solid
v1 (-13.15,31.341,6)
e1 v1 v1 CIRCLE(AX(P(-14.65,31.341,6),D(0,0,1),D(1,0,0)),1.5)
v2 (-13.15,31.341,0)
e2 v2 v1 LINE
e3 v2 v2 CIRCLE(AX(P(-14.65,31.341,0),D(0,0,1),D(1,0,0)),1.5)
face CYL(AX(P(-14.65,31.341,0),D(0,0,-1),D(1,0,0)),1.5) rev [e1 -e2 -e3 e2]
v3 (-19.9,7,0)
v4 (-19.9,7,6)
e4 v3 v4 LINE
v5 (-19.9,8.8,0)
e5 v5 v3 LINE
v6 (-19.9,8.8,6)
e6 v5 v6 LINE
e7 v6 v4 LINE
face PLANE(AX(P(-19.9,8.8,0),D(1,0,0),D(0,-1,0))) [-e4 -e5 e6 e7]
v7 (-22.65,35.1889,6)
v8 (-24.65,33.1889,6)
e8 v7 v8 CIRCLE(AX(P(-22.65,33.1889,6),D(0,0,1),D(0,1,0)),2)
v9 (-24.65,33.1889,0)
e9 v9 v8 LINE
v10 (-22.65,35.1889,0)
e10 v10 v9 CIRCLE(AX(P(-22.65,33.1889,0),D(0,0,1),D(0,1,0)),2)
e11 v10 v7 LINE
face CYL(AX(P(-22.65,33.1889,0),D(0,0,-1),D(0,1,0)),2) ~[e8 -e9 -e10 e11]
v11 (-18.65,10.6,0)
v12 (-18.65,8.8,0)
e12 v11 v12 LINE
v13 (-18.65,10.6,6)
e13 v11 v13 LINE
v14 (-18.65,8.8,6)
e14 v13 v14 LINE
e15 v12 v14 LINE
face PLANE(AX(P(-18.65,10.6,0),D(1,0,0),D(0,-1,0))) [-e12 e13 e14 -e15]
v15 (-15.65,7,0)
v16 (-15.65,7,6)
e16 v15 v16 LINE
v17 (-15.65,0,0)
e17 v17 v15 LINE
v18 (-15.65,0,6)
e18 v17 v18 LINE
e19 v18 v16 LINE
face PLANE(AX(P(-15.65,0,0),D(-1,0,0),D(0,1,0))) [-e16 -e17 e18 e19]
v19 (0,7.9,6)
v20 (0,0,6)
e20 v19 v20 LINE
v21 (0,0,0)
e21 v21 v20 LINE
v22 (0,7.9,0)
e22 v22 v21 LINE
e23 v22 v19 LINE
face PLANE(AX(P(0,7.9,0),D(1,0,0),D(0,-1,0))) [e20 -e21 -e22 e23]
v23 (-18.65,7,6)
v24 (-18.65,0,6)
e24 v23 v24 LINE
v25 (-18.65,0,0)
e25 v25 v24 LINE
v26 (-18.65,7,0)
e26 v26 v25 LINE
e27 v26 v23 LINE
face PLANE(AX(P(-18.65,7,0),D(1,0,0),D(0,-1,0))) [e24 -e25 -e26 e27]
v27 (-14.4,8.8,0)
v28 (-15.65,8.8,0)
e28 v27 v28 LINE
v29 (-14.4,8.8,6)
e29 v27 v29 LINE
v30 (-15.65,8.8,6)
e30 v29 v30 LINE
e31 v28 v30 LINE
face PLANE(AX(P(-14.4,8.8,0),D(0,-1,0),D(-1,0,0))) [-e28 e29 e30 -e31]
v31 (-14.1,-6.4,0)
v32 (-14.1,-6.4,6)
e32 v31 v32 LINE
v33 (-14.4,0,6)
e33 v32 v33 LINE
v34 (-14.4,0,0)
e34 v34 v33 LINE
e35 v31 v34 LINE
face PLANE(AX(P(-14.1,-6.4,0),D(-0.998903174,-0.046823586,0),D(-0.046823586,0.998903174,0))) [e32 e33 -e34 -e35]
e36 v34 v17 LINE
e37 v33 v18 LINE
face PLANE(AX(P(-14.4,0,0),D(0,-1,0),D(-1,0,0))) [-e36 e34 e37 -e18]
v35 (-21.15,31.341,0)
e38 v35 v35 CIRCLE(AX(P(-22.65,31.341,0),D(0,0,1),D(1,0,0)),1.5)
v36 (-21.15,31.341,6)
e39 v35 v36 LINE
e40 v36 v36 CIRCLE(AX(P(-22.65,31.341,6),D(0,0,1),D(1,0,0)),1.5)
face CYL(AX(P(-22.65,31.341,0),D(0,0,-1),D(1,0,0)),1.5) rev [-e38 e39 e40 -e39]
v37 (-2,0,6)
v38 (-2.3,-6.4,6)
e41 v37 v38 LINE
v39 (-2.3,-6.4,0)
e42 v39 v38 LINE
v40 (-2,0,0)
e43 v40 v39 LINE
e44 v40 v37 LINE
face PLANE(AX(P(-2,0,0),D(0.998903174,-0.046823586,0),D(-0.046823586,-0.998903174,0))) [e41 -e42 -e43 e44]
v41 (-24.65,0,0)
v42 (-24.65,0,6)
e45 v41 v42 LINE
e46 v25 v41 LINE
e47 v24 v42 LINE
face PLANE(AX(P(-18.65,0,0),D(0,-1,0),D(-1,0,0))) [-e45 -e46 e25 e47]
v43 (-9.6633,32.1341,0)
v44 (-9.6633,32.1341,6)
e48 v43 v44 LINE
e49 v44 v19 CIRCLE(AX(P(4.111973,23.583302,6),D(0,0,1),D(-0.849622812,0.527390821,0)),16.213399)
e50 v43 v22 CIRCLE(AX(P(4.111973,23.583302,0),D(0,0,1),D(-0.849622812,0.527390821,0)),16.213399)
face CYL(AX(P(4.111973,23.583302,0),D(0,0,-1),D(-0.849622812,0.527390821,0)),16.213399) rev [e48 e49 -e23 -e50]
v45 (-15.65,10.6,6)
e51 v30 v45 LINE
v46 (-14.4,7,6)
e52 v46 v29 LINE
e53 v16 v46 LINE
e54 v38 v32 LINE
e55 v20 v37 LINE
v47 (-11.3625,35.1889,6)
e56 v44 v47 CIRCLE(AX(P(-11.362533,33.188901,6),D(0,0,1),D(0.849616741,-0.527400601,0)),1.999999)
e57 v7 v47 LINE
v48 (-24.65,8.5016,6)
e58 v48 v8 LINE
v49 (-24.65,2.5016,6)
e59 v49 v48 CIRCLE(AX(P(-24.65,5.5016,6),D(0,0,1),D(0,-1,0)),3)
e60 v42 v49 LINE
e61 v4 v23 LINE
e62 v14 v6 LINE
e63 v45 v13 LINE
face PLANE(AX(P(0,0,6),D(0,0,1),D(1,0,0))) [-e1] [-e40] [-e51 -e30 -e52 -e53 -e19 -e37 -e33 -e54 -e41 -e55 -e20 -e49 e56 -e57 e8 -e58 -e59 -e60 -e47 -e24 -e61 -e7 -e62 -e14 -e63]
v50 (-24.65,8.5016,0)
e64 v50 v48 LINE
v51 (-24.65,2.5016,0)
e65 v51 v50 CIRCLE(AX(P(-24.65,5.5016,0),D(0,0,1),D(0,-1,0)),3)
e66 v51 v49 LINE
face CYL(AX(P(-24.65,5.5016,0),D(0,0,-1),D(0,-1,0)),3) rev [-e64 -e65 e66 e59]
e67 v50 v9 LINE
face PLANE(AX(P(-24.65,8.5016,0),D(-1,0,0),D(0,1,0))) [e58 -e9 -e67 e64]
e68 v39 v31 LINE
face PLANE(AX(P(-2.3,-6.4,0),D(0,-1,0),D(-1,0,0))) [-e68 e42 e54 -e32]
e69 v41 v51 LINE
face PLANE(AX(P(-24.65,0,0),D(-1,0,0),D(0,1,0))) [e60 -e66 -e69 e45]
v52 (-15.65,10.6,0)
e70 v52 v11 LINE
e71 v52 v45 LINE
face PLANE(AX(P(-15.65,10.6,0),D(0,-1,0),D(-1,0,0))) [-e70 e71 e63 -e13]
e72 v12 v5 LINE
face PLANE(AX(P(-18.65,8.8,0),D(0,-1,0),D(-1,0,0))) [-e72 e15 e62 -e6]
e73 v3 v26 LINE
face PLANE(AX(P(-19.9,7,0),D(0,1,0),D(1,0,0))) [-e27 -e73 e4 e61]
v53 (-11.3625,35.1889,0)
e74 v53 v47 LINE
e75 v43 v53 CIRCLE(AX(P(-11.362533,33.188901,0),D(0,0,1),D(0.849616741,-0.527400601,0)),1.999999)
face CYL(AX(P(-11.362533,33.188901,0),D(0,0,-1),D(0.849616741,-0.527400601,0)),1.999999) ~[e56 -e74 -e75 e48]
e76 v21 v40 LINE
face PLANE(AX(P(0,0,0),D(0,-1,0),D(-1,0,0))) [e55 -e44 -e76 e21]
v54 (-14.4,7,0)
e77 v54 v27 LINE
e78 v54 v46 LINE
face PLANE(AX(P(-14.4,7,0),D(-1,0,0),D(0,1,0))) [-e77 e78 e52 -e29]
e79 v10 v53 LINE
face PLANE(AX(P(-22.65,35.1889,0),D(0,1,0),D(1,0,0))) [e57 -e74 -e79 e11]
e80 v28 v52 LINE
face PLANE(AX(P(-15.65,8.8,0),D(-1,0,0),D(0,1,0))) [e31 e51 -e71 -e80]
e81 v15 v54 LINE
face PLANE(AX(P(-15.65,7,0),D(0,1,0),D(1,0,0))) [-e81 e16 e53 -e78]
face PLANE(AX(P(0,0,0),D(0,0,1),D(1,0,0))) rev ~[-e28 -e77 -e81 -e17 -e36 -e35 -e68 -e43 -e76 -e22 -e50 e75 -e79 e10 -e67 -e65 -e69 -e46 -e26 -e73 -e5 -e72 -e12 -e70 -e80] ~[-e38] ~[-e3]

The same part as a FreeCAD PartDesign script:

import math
import FreeCAD as App
import Part
import Sketcher

V = App.Vector
Q = App.Units.Quantity

doc = App.newDocument("Part")
body = doc.addObject("PartDesign::Body", "Body")

# Sketch on XY plane
sketch1 = body.newObject("Sketcher::SketchObject", "Sketch")
sketch1.AttachmentSupport = (doc.getObject("XY_Plane"), [""])
sketch1.MapMode = "FlatFace"
sketch1.addGeometry([
    Part.LineSegment(V(-11.4, 35.2, 0), V(-22.6, 35.2, 0)),  # 0
    Part.ArcOfCircle(Part.Circle(V(-22.6, 33.2, 0), V(0, 0, 1), 2), math.radians(90), math.radians(180)),  # 1
    Part.LineSegment(V(-24.6, 33.2, 0), V(-24.6, 8.5, 0)),  # 2
    Part.ArcOfCircle(Part.Circle(V(-24.6, 5.5, 0), V(0, 0, 1), 3), math.radians(-90), math.radians(90)),  # 3
    Part.LineSegment(V(-24.6, 2.5, 0), V(-24.6, 0, 0)),  # 4
    Part.LineSegment(V(-24.6, 0, 0), V(-18.6, 0, 0)),  # 5
    Part.LineSegment(V(-18.6, 0, 0), V(-18.6, 7, 0)),  # 6
    Part.LineSegment(V(-18.6, 7, 0), V(-19.9, 7, 0)),  # 7
    Part.LineSegment(V(-19.9, 7, 0), V(-19.9, 8.8, 0)),  # 8
    Part.LineSegment(V(-19.9, 8.8, 0), V(-18.6, 8.8, 0)),  # 9
    Part.LineSegment(V(-18.6, 8.8, 0), V(-18.6, 10.6, 0)),  # 10
    Part.LineSegment(V(-18.6, 10.6, 0), V(-15.7, 10.6, 0)),  # 11
    Part.LineSegment(V(-15.7, 10.6, 0), V(-15.7, 8.8, 0)),  # 12
    Part.LineSegment(V(-15.7, 8.8, 0), V(-14.4, 8.8, 0)),  # 13
    Part.LineSegment(V(-14.4, 8.8, 0), V(-14.4, 7, 0)),  # 14
    Part.LineSegment(V(-14.4, 7, 0), V(-15.7, 7, 0)),  # 15
    Part.LineSegment(V(-15.7, 7, 0), V(-15.7, 0, 0)),  # 16
    Part.LineSegment(V(-15.7, 0, 0), V(-14.4, 0, 0)),  # 17
    Part.LineSegment(V(-14.4, 0, 0), V(-14.1, -6.4, 0)),  # 18
    Part.LineSegment(V(-14.1, -6.4, 0), V(-2.3, -6.4, 0)),  # 19
    Part.LineSegment(V(-2.3, -6.4, 0), V(-2, 0, 0)),  # 20
    Part.LineSegment(V(-2, 0, 0), V(0, 0, 0)),  # 21
    Part.LineSegment(V(0, 0, 0), V(0, 7.9, 0)),  # 22
    Part.ArcOfCircle(Part.Circle(V(4.1, 23.6, 0), V(0, 0, 1), 16.2), math.radians(148), math.radians(255)),  # 23
    Part.ArcOfCircle(Part.Circle(V(-11.4, 33.2, 0), V(0, 0, 1), 2), math.radians(-32), math.radians(90)),  # 24
    Part.Circle(V(-22.6, 31.3, 0), V(0, 0, 1), 1.5),  # 25
    Part.Circle(V(-14.7, 31.3, 0), V(0, 0, 1), 1.5),  # 26
], False)
sketch1.addConstraint([
    Sketcher.Constraint("Tangent", 0, 2, 1, 1),
    Sketcher.Constraint("Tangent", 1, 2, 2, 1),
    Sketcher.Constraint("Coincident", 2, 2, 3, 2),
    Sketcher.Constraint("Coincident", 3, 1, 4, 1),
    Sketcher.Constraint("Coincident", 4, 2, 5, 1),
    Sketcher.Constraint("Coincident", 5, 2, 6, 1),
    Sketcher.Constraint("Coincident", 6, 2, 7, 1),
    Sketcher.Constraint("Coincident", 7, 2, 8, 1),
    Sketcher.Constraint("Coincident", 8, 2, 9, 1),
    Sketcher.Constraint("Coincident", 9, 2, 10, 1),
    Sketcher.Constraint("Coincident", 10, 2, 11, 1),
    Sketcher.Constraint("Coincident", 11, 2, 12, 1),
    Sketcher.Constraint("Coincident", 12, 2, 13, 1),
    Sketcher.Constraint("Coincident", 13, 2, 14, 1),
    Sketcher.Constraint("Coincident", 14, 2, 15, 1),
    Sketcher.Constraint("Coincident", 15, 2, 16, 1),
    Sketcher.Constraint("Coincident", 16, 2, 17, 1),
    Sketcher.Constraint("Coincident", 17, 2, 18, 1),
    Sketcher.Constraint("Coincident", 18, 2, 19, 1),
    Sketcher.Constraint("Coincident", 19, 2, 20, 1),
    Sketcher.Constraint("Coincident", 20, 2, 21, 1),
    Sketcher.Constraint("Coincident", 21, 2, 22, 1),
    Sketcher.Constraint("Coincident", 22, 2, 23, 2),
    Sketcher.Constraint("Tangent", 23, 1, 24, 1),
    Sketcher.Constraint("Tangent", 24, 2, 0, 1),
    Sketcher.Constraint("Horizontal", 0),
    Sketcher.Constraint("Vertical", 2),
    Sketcher.Constraint("Vertical", 4),
    Sketcher.Constraint("Horizontal", 5),
    Sketcher.Constraint("Vertical", 6),
    Sketcher.Constraint("Horizontal", 7),
    Sketcher.Constraint("Vertical", 8),
    Sketcher.Constraint("Horizontal", 9),
    Sketcher.Constraint("Vertical", 10),
    Sketcher.Constraint("Horizontal", 11),
    Sketcher.Constraint("Vertical", 12),
    Sketcher.Constraint("Horizontal", 13),
    Sketcher.Constraint("Vertical", 14),
    Sketcher.Constraint("Horizontal", 15),
    Sketcher.Constraint("Vertical", 16),
    Sketcher.Constraint("Horizontal", 17),
    Sketcher.Constraint("Horizontal", 19),
    Sketcher.Constraint("Horizontal", 21),
    Sketcher.Constraint("Vertical", 22),
    Sketcher.Constraint("Coincident", 21, 2, -1, 1),
    Sketcher.Constraint("Equal", 1, 24),
    Sketcher.Constraint("Equal", 25, 26),
    Sketcher.Constraint("PointOnObject", 4, 2, -1),
    Sketcher.Constraint("PointOnObject", 16, 2, -1),
    Sketcher.Constraint("Horizontal", 25, 3, 26, 3),
    Sketcher.Constraint("Horizontal", 9, 2, 12, 2),
    Sketcher.Constraint("Horizontal", 7, 2, 14, 2),
    Sketcher.Constraint("Vertical", 1, 3, 25, 3),
    Sketcher.Constraint("Vertical", 3, 3, 1, 2),
    Sketcher.Constraint("Vertical", 2, 2, 3, 1),
    Sketcher.Constraint("Vertical", 6, 2, 9, 2),
    Sketcher.Constraint("Vertical", 12, 2, 15, 2),
    Sketcher.Constraint("Vertical", 14, 2, 17, 2),
    Sketcher.Constraint("Equal", 9, 13),
    Sketcher.Constraint("Equal", 8, 10),
    Sketcher.Constraint("Equal", 18, 20),
    Sketcher.Constraint("Diameter", 25, Q("3 mm")),
    Sketcher.Constraint("Radius", 1, Q("2 mm")),
    Sketcher.Constraint("Radius", 3, Q("3 mm")),
    Sketcher.Constraint("DistanceX", 5, 1, 5, 2, Q("6 mm")),
    Sketcher.Constraint("DistanceX", 11, 1, 11, 2, Q("3 mm")),
    Sketcher.Constraint("DistanceX", 21, 1, 21, 2, Q("2 mm")),
    Sketcher.Constraint("DistanceY", 6, 1, 6, 2, Q("7 mm")),
    Sketcher.Constraint("DistanceX", 19, 1, 19, 2, Q("11.8 mm")),
    Sketcher.Constraint("DistanceY", 8, 1, 8, 2, Q("1.8 mm")),
    Sketcher.Constraint("DistanceY", 22, 1, 22, 2, Q("7.9 mm")),
    Sketcher.Constraint("DistanceX", 25, 3, 26, 3, Q("8 mm")),
    Sketcher.Constraint("DistanceX", 7, 2, 7, 1, Q("1.25 mm")),
    Sketcher.Constraint("DistanceX", 7, 2, -1, 1, Q("19.9 mm")),
    Sketcher.Constraint("DistanceY", 18, 2, -1, 1, Q("6.4 mm")),
    Sketcher.Constraint("Radius", 23, Q("16.2134 mm")),
    Sketcher.Constraint("DistanceX", 0, 2, 0, 1, Q("11.2875 mm")),
    Sketcher.Constraint("DistanceY", 2, 2, 2, 1, Q("24.6873 mm")),
    Sketcher.Constraint("DistanceY", 4, 2, 4, 1, Q("2.5016 mm")),
    Sketcher.Constraint("DistanceY", -1, 1, 25, 3, Q("31.341 mm")),
])
pad1 = body.newObject("PartDesign::Pad", "Pad")
pad1.Profile = sketch1
pad1.Length = 6

doc.recompute()
